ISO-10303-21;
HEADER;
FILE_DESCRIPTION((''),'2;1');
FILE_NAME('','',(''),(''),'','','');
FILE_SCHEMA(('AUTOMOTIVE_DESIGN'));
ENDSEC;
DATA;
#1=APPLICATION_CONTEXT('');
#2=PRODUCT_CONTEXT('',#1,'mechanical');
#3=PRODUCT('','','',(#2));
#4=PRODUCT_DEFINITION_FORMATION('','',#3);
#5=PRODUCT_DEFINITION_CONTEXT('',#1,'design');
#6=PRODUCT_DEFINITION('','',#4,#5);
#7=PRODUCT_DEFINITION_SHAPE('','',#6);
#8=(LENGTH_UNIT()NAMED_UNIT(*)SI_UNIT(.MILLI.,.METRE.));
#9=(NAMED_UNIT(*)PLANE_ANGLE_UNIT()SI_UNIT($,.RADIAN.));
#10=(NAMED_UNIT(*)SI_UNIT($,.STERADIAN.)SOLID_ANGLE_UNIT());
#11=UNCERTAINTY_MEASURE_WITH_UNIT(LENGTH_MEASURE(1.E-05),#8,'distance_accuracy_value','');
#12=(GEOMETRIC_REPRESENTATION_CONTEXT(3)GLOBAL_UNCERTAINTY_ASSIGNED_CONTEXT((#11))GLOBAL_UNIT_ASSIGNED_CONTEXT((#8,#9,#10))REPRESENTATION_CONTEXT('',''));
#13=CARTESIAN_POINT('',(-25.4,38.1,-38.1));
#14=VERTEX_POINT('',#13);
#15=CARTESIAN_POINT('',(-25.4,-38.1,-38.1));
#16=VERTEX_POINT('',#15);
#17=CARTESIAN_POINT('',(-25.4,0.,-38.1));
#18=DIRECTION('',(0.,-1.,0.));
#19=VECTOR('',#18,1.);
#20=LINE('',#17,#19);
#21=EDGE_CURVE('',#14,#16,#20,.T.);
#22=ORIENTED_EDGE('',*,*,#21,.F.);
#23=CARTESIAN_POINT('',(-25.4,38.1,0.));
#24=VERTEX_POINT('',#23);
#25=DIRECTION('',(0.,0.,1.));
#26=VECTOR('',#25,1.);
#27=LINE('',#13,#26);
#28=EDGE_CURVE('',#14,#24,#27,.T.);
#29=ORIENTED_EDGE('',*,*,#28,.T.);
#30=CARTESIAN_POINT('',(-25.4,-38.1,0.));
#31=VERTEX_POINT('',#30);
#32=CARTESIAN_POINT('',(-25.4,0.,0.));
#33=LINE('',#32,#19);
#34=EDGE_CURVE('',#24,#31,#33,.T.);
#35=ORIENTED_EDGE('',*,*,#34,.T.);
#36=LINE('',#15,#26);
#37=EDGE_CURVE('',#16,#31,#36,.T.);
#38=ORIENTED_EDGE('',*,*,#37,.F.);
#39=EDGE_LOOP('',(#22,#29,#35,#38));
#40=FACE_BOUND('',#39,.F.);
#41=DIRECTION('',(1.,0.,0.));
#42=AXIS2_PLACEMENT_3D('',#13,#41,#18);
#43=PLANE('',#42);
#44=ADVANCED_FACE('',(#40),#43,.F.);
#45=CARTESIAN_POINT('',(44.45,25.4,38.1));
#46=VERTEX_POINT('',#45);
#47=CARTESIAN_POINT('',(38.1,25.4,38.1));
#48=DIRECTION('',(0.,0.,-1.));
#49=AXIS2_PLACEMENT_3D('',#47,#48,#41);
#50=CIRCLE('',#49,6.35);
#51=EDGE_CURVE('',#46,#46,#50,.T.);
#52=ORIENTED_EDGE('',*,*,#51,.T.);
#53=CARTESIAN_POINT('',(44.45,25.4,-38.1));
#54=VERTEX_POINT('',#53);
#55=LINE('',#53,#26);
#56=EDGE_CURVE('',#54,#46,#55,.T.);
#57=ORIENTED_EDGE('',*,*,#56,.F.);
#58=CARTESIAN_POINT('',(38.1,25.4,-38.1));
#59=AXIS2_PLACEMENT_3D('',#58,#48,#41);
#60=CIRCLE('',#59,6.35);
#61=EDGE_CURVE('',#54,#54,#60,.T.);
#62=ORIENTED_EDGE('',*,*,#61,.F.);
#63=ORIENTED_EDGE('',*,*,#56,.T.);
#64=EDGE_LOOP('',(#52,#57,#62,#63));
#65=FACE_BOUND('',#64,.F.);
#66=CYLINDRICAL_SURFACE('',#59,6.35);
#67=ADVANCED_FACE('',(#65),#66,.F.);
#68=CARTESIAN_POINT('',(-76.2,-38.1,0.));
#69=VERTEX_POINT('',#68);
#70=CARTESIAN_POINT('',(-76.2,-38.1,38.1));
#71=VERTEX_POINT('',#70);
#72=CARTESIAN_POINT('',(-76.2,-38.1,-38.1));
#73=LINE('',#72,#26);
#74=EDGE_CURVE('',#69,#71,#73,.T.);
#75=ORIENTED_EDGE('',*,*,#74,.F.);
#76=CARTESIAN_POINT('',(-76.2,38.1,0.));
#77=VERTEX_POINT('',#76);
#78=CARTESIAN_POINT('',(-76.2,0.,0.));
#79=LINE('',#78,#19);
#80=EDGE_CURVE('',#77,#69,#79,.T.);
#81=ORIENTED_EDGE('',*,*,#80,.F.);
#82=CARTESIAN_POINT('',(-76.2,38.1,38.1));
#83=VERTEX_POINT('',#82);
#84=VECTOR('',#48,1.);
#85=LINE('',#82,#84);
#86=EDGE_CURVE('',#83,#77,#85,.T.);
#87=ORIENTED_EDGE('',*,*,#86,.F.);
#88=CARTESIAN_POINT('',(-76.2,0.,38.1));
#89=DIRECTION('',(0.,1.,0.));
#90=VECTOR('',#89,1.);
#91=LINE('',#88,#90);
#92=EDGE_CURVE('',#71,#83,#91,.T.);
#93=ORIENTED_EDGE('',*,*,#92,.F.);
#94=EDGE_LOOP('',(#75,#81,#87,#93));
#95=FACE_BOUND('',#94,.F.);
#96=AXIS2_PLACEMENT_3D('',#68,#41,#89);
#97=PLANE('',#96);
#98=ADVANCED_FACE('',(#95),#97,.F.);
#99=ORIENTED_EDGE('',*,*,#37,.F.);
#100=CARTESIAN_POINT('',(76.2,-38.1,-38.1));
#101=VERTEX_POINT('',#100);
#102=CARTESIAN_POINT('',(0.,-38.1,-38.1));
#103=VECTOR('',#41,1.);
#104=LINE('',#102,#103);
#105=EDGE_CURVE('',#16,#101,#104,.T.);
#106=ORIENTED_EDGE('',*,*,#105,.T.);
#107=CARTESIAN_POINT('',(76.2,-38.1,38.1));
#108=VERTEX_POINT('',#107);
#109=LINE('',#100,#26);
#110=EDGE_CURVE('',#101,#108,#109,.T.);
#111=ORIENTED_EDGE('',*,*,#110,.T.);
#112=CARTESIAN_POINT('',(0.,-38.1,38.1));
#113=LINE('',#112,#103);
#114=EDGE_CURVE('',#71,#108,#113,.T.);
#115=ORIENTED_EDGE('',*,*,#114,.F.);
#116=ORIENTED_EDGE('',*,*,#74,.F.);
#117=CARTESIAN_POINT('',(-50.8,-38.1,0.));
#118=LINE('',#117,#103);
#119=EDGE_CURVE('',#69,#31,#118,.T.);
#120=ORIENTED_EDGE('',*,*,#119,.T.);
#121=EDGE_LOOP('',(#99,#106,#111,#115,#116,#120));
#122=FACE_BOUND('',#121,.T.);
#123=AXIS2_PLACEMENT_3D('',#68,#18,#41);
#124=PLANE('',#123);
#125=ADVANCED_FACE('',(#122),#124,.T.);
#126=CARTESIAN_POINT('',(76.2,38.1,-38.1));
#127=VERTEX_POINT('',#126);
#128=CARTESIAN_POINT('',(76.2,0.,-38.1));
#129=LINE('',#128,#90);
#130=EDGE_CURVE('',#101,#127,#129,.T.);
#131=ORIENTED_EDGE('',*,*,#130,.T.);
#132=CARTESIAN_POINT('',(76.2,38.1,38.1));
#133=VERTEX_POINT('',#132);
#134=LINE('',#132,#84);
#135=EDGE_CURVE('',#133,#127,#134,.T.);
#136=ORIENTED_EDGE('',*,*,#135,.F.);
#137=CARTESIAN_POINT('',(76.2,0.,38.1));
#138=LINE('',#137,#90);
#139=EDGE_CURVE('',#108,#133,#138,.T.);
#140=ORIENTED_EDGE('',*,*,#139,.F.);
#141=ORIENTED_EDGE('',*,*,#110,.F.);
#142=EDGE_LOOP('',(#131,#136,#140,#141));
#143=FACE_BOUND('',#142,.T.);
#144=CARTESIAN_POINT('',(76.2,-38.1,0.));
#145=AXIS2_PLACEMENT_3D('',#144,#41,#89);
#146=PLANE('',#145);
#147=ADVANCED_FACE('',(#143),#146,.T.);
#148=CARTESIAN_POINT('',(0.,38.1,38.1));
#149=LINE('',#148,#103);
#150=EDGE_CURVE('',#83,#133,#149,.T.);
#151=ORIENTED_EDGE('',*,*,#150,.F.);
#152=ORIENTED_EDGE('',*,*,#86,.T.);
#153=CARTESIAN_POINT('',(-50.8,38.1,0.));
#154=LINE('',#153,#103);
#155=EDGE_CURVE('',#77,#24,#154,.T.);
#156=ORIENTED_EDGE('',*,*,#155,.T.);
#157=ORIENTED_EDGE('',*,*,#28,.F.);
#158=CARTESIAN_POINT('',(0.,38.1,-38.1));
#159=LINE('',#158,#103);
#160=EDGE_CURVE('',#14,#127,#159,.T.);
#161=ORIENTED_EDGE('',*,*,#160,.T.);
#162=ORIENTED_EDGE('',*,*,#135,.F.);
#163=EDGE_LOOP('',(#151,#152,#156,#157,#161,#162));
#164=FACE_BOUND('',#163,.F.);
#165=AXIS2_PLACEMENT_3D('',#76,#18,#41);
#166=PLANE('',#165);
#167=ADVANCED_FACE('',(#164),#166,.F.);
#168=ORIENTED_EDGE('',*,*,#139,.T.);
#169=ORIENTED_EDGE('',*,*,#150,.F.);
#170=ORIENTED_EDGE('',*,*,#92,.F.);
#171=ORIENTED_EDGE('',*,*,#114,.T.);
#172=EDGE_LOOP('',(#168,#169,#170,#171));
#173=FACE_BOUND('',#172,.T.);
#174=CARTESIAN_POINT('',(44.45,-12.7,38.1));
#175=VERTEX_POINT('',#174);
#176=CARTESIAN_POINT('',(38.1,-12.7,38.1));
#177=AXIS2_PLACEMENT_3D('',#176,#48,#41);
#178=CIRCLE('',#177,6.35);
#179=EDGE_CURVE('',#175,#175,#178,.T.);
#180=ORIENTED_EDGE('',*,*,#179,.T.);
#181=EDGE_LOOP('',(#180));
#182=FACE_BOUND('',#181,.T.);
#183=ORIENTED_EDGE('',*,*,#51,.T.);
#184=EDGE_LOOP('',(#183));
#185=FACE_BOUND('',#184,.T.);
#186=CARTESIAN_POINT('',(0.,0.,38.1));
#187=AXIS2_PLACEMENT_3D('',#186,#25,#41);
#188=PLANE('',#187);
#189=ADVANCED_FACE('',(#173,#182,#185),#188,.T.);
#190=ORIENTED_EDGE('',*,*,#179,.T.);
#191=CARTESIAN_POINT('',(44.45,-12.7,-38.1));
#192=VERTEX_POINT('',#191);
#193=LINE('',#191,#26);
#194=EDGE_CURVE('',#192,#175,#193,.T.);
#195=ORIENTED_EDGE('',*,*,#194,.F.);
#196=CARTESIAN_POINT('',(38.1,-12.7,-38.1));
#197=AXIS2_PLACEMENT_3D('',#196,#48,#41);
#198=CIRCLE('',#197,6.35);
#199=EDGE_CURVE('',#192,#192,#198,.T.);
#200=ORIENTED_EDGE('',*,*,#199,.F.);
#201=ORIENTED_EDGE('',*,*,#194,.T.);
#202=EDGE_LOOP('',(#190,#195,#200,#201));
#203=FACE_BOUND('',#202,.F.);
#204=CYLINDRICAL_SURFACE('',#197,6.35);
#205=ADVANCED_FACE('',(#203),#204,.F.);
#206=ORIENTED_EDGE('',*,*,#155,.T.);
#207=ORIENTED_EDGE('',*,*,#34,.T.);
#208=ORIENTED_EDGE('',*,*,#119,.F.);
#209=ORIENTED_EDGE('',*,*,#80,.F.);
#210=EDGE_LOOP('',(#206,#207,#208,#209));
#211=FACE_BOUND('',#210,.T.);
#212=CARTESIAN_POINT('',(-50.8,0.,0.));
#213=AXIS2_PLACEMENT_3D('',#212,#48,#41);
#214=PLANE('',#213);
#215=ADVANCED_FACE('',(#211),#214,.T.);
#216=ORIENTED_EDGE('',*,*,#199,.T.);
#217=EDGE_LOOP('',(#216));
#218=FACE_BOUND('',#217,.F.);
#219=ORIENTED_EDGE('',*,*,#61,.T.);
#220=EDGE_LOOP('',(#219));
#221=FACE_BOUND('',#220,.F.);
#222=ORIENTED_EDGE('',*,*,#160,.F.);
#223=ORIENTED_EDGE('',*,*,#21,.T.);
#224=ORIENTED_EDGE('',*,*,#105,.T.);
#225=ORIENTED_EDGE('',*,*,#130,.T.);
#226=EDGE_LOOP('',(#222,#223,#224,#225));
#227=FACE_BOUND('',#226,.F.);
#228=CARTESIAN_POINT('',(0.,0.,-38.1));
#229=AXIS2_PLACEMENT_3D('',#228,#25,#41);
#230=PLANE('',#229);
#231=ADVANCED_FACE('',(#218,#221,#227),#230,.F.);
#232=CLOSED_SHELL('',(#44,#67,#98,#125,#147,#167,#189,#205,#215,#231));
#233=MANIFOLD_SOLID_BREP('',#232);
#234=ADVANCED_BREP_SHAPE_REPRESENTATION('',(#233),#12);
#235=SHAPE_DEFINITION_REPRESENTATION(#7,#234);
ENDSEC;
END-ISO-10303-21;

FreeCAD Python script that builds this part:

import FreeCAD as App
import Part
import Sketcher

V = App.Vector
Q = App.Units.Quantity


def add_polygon(sketch, points):
    """Adds a closed chain of lines whose ends are joined by coincident constraints."""
    first, n = sketch.GeometryCount, len(points)
    for a, b in zip(points, points[1:] + points[:1]):
        sketch.addGeometry(Part.LineSegment(App.Vector(*a, 0), App.Vector(*b, 0)), False)
    for i in range(n):
        sketch.addConstraint(Sketcher.Constraint("Coincident", first + i, 2, first + (i + 1) % n, 1))

doc = App.newDocument("Part")
body = doc.addObject("PartDesign::Body", "Body")

# Sketch on XY plane
sketch1 = body.newObject("Sketcher::SketchObject", "Sketch")
sketch1.AttachmentSupport = (doc.getObject("XY_Plane"), [""])
sketch1.MapMode = "FlatFace"
add_polygon(sketch1, [(-76.2, 38.1), (-76.2, -38.1), (76.2, -38.1), (76.2, 38.1)])  # lines 0-3
sketch1.addConstraint([
    Sketcher.Constraint("Vertical", 0),
    Sketcher.Constraint("Horizontal", 1),
    Sketcher.Constraint("Vertical", 2),
    Sketcher.Constraint("Horizontal", 3),
    Sketcher.Constraint("Symmetric", 0, 2, 2, 2, -1, 1),
    Sketcher.Constraint("DistanceX", 1, 1, 1, 2, Q("6 in")),
    Sketcher.Constraint("DistanceY", 0, 2, 0, 1, Q("3 in")),
])
pad1 = body.newObject("PartDesign::Pad", "Pad")
pad1.Profile = sketch1
pad1.Length = Q("3 in")
pad1.Midplane = True

# Sketch on XY plane
sketch2 = body.newObject("Sketcher::SketchObject", "Sketch001")
sketch2.AttachmentSupport = (doc.getObject("XY_Plane"), [""])
sketch2.MapMode = "FlatFace"
sketch2.AttachmentOffset = App.Placement(V(0, 0, -1.5 * 25.4), App.Rotation())
add_polygon(sketch2, [(-76.2, -38.1), (-76.2, 38.1), (-25.4, 38.1), (-25.4, -38.1)])  # lines 0-3
sketch2.addConstraint([
    Sketcher.Constraint("Vertical", 0),
    Sketcher.Constraint("Horizontal", 1),
    Sketcher.Constraint("Vertical", 2),
    Sketcher.Constraint("Horizontal", 3),
    Sketcher.Constraint("DistanceX", 1, 1, 1, 2, Q("2 in")),
    Sketcher.Constraint("DistanceY", 0, 1, 0, 2, Q("3 in")),
    Sketcher.Constraint("DistanceX", 0, 2, -1, 1, Q("3 in")),
    Sketcher.Constraint("DistanceY", -1, 1, 0, 2, Q("1.5 in")),
])
pocket1 = body.newObject("PartDesign::Pocket", "Pocket")
pocket1.Profile = sketch2
pocket1.Length = Q("1.5 in")
pocket1.Reversed = True

# Sketch on XY plane
sketch3 = body.newObject("Sketcher::SketchObject", "Sketch002")
sketch3.AttachmentSupport = (doc.getObject("XY_Plane"), [""])
sketch3.MapMode = "FlatFace"
sketch3.AttachmentOffset = App.Placement(V(0, 0, -1.5 * 25.4), App.Rotation())
sketch3.addGeometry([
    Part.Circle(V(38.1, -12.7, 0), V(0, 0, 1), 6.35),
    Part.Circle(V(38.1, 25.4, 0), V(0, 0, 1), 6.35),
], False)
sketch3.addConstraint([
    Sketcher.Constraint("Equal", 0, 1),
    Sketcher.Constraint("Vertical", 0, 3, 1, 3),
    Sketcher.Constraint("Diameter", 0, Q("0.5 in")),
    Sketcher.Constraint("DistanceY", -1, 1, 1, 3, Q("1 in")),
    Sketcher.Constraint("DistanceX", -1, 1, 0, 3, Q("1.5 in")),
    Sketcher.Constraint("DistanceY", 0, 3, -1, 1, Q("0.5 in")),
])
pocket2 = body.newObject("PartDesign::Pocket", "Pocket001")
pocket2.Profile = sketch3
pocket2.Length = Q("3 in")
pocket2.Reversed = True

doc.recompute()
